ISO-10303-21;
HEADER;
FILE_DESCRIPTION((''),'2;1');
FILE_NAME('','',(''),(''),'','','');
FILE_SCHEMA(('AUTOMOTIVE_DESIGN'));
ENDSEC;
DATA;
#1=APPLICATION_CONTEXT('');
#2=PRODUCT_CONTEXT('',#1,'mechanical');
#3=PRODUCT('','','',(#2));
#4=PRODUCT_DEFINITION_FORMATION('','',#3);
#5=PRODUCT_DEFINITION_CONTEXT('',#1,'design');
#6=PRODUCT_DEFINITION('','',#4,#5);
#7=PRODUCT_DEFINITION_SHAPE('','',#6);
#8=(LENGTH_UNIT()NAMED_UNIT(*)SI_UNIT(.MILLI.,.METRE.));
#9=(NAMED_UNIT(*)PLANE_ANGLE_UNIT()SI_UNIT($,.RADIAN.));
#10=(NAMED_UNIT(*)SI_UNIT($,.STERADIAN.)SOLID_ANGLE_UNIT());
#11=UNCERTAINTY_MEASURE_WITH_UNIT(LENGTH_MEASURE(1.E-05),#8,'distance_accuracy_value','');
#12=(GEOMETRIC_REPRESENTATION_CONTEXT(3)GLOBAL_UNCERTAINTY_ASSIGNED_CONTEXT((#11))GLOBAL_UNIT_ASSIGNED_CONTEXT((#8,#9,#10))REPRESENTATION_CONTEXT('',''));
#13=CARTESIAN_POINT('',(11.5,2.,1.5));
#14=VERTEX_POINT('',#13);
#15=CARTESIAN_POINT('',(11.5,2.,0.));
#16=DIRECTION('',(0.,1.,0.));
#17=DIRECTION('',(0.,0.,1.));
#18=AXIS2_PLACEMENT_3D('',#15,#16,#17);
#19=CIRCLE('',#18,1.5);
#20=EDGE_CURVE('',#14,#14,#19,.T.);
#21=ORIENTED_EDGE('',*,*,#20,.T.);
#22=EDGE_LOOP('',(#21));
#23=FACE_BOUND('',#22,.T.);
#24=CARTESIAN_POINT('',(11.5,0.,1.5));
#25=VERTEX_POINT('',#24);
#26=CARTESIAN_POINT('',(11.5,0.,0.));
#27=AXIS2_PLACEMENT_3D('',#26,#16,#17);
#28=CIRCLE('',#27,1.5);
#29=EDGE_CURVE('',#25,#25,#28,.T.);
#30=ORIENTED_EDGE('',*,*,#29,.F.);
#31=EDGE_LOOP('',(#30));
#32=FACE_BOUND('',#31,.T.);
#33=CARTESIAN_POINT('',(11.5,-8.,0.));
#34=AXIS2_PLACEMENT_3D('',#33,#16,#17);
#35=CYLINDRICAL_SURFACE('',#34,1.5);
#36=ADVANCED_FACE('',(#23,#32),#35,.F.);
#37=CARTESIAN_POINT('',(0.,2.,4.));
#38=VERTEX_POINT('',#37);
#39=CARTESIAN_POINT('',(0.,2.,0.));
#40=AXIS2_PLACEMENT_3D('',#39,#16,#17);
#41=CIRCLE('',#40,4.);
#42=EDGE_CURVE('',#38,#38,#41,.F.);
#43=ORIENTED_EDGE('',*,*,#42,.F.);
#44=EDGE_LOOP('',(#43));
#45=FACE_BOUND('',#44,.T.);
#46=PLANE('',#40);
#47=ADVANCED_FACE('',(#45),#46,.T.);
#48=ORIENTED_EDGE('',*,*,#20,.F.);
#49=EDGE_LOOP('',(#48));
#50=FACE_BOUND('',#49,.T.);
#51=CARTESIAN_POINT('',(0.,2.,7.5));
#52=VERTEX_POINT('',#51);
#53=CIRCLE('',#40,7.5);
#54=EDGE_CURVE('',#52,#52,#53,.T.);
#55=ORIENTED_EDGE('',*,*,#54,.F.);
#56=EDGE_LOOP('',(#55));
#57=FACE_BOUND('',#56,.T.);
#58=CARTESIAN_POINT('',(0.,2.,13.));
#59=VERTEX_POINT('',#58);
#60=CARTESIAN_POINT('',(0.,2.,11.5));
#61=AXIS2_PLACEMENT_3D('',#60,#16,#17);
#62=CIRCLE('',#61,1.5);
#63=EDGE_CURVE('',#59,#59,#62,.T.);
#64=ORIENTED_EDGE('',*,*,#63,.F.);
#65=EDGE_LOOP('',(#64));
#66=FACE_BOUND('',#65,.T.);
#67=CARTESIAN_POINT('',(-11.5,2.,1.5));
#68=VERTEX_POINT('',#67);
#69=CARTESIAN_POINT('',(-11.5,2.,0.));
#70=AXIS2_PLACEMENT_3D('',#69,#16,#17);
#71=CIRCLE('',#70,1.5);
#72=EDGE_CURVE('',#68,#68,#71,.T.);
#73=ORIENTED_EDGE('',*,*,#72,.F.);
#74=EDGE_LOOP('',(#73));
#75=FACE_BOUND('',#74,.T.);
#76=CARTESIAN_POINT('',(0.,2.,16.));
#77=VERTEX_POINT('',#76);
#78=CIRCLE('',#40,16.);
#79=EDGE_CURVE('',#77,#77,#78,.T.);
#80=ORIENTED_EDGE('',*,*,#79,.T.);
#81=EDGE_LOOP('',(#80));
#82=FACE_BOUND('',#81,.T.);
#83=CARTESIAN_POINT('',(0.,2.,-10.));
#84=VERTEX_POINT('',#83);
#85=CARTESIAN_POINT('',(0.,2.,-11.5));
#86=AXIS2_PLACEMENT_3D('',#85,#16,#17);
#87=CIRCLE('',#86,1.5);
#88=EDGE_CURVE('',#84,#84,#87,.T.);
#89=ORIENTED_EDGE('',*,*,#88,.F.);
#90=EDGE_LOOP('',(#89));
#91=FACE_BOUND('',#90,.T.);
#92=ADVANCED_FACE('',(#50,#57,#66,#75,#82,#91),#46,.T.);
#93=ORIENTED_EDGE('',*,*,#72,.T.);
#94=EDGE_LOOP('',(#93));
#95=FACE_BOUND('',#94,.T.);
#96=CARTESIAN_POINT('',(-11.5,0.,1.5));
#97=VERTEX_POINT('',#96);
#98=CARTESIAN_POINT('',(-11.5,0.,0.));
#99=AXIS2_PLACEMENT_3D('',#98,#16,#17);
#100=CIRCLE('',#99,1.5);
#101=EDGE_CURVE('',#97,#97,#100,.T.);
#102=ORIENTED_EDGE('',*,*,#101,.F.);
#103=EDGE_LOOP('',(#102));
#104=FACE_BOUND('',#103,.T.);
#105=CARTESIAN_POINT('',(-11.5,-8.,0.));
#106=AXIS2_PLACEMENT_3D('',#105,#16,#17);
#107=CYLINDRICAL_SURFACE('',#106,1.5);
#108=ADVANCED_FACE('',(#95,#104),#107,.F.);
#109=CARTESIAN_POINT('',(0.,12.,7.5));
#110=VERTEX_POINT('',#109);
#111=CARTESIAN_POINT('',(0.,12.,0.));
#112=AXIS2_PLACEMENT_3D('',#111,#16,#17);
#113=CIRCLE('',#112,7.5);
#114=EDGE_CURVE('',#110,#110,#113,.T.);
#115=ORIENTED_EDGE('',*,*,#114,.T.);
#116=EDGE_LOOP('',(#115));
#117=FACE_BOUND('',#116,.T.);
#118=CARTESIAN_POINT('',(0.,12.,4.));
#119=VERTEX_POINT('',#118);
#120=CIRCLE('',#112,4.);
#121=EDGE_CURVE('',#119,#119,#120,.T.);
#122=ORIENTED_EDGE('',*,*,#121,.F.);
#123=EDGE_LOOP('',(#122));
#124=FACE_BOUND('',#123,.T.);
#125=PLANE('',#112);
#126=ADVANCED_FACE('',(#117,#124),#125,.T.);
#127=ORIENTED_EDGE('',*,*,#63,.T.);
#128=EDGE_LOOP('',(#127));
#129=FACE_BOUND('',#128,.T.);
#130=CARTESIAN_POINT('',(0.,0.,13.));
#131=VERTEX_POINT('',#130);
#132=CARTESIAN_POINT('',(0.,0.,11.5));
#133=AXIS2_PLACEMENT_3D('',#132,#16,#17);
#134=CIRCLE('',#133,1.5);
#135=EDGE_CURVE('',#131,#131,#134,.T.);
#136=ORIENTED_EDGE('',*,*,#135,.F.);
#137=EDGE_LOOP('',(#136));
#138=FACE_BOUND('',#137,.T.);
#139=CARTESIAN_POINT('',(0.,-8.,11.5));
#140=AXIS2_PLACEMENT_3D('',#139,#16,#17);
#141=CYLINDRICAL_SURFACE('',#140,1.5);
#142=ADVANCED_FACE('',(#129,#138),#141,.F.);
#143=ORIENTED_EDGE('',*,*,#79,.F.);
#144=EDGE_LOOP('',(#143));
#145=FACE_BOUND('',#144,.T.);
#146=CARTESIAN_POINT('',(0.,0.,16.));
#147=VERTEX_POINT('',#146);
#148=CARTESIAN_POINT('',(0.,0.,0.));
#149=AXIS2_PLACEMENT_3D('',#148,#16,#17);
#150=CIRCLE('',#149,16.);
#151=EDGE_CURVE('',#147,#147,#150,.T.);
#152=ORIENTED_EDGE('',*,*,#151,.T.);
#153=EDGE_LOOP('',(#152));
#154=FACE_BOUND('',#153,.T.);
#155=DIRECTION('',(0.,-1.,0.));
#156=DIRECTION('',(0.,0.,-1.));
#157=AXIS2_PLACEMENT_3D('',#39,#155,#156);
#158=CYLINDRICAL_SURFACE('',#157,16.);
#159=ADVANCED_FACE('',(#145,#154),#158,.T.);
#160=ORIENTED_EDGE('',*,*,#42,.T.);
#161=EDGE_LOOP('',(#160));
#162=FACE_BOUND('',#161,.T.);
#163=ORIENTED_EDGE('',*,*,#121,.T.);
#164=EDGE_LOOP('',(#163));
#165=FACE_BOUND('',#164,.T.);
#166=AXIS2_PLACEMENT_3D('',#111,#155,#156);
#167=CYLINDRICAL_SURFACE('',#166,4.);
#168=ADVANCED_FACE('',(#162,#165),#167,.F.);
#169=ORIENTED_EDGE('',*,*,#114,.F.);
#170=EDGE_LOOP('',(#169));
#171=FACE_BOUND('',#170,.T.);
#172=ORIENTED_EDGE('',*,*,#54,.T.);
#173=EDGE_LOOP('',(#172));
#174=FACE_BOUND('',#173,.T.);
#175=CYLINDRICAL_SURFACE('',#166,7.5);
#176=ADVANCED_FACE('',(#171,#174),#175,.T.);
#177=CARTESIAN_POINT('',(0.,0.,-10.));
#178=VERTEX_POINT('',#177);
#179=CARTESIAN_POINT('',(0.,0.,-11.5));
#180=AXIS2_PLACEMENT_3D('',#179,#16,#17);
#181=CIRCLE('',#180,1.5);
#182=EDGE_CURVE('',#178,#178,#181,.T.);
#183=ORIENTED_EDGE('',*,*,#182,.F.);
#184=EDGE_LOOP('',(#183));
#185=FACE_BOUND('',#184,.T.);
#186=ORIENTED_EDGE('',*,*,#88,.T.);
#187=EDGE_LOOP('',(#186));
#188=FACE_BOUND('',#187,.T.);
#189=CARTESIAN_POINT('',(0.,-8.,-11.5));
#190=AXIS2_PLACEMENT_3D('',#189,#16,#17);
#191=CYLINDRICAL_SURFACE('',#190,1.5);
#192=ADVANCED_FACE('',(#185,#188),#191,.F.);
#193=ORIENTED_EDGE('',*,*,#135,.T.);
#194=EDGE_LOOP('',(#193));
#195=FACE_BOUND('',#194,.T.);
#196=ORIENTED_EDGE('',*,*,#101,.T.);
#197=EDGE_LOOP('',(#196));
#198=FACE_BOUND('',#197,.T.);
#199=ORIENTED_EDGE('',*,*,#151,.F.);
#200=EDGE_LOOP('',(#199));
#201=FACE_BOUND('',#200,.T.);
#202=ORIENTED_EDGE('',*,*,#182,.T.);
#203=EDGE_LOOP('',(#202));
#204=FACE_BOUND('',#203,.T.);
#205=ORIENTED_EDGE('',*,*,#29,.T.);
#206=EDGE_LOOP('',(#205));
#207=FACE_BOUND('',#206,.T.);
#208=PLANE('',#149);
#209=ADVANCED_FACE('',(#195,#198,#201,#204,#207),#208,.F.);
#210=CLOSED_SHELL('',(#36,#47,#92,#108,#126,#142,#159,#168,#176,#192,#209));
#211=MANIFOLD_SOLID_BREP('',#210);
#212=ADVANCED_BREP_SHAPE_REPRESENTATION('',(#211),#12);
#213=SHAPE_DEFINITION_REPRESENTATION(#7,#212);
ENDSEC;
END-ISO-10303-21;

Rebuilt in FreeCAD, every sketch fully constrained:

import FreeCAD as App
import Part
import Sketcher
Q = App.Units.Quantity

doc = App.newDocument("Part")
body = doc.addObject("PartDesign::Body", "Body")

# Sketch on XZ plane
sketch1 = doc.addObject("Sketcher::SketchObject", "Sketch")
body.addObject(sketch1)
sketch1.AttachmentSupport = (doc.XZ_Plane, [""])
sketch1.MapMode = "FlatFace"
sketch1.addGeometry(Part.Circle(App.Vector(0, 0, 0), App.Vector(0, 0, 1), 16), False)
sketch1.addConstraint(Sketcher.Constraint("Coincident", 0, 3, -1, 1))
sketch1.addConstraint(Sketcher.Constraint("Diameter", 0, Q("32 mm")))
pad1 = doc.addObject("PartDesign::Pad", "Pad")
body.addObject(pad1)
pad1.Profile = sketch1
pad1.Length = 2
pad1.Reversed = True

# Sketch on XZ plane
sketch2 = doc.addObject("Sketcher::SketchObject", "Sketch001")
body.addObject(sketch2)
sketch2.AttachmentSupport = (doc.XZ_Plane, [""])
sketch2.MapMode = "FlatFace"
sketch2.AttachmentOffset = App.Placement(App.Vector(0, 0, -2), App.Rotation())
sketch2.addGeometry(Part.Circle(App.Vector(0, 0, 0), App.Vector(0, 0, 1), 7.5), False)
sketch2.addGeometry(Part.Circle(App.Vector(0, 0, 0), App.Vector(0, 0, 1), 4), False)
sketch2.addConstraint(Sketcher.Constraint("Coincident", 0, 3, -1, 1))
sketch2.addConstraint(Sketcher.Constraint("Coincident", 1, 3, -1, 1))
sketch2.addConstraint(Sketcher.Constraint("Diameter", 0, Q("15 mm")))
sketch2.addConstraint(Sketcher.Constraint("Diameter", 1, Q("8 mm")))
pad2 = doc.addObject("PartDesign::Pad", "Pad001")
body.addObject(pad2)
pad2.Profile = sketch2
pad2.Length = 10
pad2.Reversed = True

# Sketch on XZ plane
sketch3 = doc.addObject("Sketcher::SketchObject", "Sketch002")
body.addObject(sketch3)
sketch3.AttachmentSupport = (doc.XZ_Plane, [""])
sketch3.MapMode = "FlatFace"
sketch3.AttachmentOffset = App.Placement(App.Vector(0, 0, -2), App.Rotation())
sketch3.addGeometry(Part.Circle(App.Vector(-11.5, 0, 0), App.Vector(0, 0, 1), 1.5), False)
sketch3.addGeometry(Part.Circle(App.Vector(0, -11.5, 0), App.Vector(0, 0, 1), 1.5), False)
sketch3.addGeometry(Part.Circle(App.Vector(11.5, 0, 0), App.Vector(0, 0, 1), 1.5), False)
sketch3.addGeometry(Part.Circle(App.Vector(0, 11.5, 0), App.Vector(0, 0, 1), 1.5), False)
sketch3.addConstraint(Sketcher.Constraint("Equal", 0, 1))
sketch3.addConstraint(Sketcher.Constraint("Equal", 1, 2))
sketch3.addConstraint(Sketcher.Constraint("Equal", 2, 3))
sketch3.addConstraint(Sketcher.Constraint("Symmetric", 0, 3, 2, 3, -1, 1))
sketch3.addConstraint(Sketcher.Constraint("Symmetric", 1, 3, 3, 3, -1, 1))
sketch3.addConstraint(Sketcher.Constraint("PointOnObject", 0, 3, -1))
sketch3.addConstraint(Sketcher.Constraint("PointOnObject", 1, 3, -2))
sketch3.addConstraint(Sketcher.Constraint("Diameter", 0, Q("3 mm")))
sketch3.addConstraint(Sketcher.Constraint("DistanceX", 0, 3, 2, 3, Q("23 mm")))
sketch3.addConstraint(Sketcher.Constraint("DistanceY", 1, 3, 3, 3, Q("23 mm")))
pocket1 = doc.addObject("PartDesign::Pocket", "Pocket")
body.addObject(pocket1)
pocket1.Profile = sketch3
pocket1.Length = 10
pocket1.Reversed = True

doc.recompute()
